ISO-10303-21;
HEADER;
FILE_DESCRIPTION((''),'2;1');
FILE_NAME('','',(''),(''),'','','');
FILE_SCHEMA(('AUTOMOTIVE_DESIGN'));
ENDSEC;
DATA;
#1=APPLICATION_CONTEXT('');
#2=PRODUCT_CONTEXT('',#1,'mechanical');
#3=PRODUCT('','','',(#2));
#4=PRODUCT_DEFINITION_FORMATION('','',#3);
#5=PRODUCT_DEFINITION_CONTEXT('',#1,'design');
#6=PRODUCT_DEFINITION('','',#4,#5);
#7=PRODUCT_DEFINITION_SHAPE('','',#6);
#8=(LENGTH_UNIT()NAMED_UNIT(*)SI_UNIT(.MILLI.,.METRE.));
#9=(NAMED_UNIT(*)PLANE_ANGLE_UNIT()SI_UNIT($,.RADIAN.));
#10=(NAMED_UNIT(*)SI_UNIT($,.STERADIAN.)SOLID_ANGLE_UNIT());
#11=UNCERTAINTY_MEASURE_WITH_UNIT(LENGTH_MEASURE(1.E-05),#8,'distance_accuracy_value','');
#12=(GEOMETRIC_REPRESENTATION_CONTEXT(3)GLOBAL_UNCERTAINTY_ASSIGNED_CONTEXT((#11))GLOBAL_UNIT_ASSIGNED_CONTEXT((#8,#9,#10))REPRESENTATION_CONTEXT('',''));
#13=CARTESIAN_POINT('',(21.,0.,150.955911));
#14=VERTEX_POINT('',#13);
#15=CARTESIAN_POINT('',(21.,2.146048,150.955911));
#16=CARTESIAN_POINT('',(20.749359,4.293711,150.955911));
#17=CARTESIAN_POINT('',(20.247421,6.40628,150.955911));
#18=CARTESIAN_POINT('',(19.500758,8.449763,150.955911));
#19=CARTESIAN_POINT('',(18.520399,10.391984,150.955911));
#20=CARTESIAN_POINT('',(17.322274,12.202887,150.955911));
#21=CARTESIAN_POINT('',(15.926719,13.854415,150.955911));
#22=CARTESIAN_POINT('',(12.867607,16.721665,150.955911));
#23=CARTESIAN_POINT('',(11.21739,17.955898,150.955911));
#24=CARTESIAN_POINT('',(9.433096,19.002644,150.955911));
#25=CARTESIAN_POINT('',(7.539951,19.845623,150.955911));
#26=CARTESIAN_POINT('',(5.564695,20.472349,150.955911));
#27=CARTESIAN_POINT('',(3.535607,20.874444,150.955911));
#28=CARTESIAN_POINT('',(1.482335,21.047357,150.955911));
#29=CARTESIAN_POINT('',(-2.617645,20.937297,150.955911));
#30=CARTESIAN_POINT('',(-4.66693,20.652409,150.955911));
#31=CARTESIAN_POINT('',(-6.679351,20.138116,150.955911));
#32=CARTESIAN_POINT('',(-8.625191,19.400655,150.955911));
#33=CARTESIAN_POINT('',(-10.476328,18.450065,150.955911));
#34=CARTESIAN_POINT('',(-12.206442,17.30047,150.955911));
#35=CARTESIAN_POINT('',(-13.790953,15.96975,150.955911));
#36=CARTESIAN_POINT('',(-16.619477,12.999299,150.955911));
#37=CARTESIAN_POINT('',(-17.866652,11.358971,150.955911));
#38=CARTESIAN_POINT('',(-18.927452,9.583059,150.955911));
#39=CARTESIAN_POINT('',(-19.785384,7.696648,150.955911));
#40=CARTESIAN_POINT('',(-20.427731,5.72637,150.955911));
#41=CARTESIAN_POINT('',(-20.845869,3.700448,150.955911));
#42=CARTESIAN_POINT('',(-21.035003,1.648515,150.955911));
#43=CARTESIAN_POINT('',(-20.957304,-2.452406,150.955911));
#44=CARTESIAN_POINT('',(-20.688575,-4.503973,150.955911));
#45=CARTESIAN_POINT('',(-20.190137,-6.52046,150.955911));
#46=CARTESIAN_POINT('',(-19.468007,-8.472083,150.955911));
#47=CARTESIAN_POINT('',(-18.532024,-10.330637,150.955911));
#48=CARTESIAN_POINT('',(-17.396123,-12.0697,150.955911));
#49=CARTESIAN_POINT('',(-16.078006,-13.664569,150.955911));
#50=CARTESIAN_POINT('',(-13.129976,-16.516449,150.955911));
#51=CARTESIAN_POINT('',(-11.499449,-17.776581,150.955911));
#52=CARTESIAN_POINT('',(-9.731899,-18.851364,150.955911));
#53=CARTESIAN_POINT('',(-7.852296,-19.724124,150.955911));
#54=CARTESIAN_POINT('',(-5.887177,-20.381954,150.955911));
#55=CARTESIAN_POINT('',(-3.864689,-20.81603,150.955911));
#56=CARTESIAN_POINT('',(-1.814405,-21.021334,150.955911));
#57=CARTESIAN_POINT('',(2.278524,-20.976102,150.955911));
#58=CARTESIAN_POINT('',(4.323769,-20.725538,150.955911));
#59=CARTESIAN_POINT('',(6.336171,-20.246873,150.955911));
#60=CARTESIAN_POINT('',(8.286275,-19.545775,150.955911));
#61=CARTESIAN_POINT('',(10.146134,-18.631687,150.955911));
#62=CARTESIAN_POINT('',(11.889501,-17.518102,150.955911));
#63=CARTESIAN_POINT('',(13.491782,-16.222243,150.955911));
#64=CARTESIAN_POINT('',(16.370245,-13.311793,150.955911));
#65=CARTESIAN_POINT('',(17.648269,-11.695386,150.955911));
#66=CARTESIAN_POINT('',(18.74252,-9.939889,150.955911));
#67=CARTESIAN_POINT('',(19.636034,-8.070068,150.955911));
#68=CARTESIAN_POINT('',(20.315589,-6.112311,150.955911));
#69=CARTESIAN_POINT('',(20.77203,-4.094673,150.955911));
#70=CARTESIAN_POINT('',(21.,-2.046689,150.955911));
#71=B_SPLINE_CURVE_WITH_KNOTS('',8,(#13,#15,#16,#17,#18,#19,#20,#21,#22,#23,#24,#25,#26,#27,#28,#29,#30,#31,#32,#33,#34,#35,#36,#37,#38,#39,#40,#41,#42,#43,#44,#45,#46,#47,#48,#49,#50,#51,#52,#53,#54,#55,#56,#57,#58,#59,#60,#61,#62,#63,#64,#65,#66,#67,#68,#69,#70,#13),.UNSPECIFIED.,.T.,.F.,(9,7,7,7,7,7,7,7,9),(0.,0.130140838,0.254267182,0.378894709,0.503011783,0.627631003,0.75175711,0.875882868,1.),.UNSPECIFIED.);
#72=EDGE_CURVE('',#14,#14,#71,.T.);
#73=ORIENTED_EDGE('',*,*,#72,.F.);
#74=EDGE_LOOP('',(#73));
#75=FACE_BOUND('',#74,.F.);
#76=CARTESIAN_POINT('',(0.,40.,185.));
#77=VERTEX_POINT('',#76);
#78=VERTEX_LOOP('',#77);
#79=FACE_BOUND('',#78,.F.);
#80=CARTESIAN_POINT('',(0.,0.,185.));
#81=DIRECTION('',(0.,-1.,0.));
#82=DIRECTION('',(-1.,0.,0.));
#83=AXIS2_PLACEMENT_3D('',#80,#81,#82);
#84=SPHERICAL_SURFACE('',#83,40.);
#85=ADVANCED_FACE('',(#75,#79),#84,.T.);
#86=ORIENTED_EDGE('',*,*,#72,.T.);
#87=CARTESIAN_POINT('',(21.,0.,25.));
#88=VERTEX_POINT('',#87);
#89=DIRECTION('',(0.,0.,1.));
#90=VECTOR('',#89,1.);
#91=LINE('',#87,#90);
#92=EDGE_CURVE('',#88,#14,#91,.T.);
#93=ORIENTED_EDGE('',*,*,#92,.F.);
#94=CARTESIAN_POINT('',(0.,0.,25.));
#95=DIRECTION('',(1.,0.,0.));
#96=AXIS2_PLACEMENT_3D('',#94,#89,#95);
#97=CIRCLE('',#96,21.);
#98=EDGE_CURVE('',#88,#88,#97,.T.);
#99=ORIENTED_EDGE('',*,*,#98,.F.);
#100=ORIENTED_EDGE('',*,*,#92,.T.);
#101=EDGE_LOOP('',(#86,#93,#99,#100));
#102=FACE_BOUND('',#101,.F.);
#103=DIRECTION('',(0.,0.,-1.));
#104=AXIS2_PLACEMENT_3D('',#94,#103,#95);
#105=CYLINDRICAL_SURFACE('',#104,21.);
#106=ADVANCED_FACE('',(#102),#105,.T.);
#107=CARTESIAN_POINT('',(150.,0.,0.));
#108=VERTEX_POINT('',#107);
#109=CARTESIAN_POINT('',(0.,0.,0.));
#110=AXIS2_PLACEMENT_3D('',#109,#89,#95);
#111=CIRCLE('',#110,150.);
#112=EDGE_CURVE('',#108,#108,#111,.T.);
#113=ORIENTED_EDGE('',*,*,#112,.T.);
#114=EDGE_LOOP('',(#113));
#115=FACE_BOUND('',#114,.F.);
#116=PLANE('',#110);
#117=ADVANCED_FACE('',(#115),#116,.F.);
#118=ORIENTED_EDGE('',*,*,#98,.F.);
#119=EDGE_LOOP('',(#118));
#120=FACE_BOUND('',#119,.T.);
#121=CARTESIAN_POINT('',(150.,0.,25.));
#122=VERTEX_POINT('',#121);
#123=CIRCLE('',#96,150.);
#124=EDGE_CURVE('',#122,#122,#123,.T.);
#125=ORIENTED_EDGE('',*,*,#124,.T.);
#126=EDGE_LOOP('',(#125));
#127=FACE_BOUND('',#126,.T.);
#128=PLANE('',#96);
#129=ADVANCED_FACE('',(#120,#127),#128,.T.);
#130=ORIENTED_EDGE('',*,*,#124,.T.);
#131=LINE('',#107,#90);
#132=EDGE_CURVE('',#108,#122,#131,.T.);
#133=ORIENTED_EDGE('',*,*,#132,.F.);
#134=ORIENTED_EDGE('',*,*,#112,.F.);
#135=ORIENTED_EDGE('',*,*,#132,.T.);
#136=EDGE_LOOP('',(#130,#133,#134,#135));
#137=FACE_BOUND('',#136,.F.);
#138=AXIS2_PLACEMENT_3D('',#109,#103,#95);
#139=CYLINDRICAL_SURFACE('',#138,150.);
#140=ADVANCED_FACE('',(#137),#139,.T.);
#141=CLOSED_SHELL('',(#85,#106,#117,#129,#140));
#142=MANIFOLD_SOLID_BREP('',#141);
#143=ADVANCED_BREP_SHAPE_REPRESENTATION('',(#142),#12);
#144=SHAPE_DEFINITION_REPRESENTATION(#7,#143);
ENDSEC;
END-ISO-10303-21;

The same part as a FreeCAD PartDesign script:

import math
import FreeCAD as App
import Part
import Sketcher
Q = App.Units.Quantity

doc = App.newDocument("Part")
body = doc.addObject("PartDesign::Body", "Body")

sketch1 = body.newObject("Sketcher::SketchObject", "Sketch")
sketch1.AttachmentSupport = (doc.getObject("XY_Plane"), [""])
sketch1.MapMode = "FlatFace"
sketch1.addGeometry(Part.Circle(App.Vector(0, 0, 0), App.Vector(0, 0, 1), 150), False)
sketch1.addConstraint(Sketcher.Constraint("Coincident", 0, 3, -1, 1))
sketch1.addConstraint(Sketcher.Constraint("Diameter", 0, Q("300 mm")))
pad1 = body.newObject("PartDesign::Pad", "Pad")
pad1.Profile = sketch1
pad1.Length = 25

sketch2 = body.newObject("Sketcher::SketchObject", "Sketch001")
sketch2.AttachmentSupport = (doc.getObject("XY_Plane"), [""])
sketch2.MapMode = "FlatFace"
sketch2.AttachmentOffset = App.Placement(App.Vector(0, 0, 25), App.Rotation())
sketch2.addGeometry(Part.Circle(App.Vector(0, 0, 0), App.Vector(0, 0, 1), 21), False)
sketch2.addConstraint(Sketcher.Constraint("Coincident", 0, 3, -1, 1))
sketch2.addConstraint(Sketcher.Constraint("Diameter", 0, Q("42 mm")))
pad2 = body.newObject("PartDesign::Pad", "Pad001")
pad2.Profile = sketch2
pad2.Length = 160

sketch3 = body.newObject("Sketcher::SketchObject", "Sketch002")
sketch3.AttachmentSupport = (doc.getObject("XY_Plane"), [""])
sketch3.MapMode = "FlatFace"
sketch3.AttachmentOffset = App.Placement(App.Vector(0, 0, 185), App.Rotation())
sketch3.addGeometry(Part.ArcOfCircle(Part.Circle(App.Vector(0, 0, 0), App.Vector(0, 0, 1), 40), math.radians(90), math.radians(270)), False)
sketch3.addGeometry(Part.LineSegment(App.Vector(0, -40, 0), App.Vector(0, 40, 0)), False)
sketch3.addConstraint(Sketcher.Constraint("Coincident", 0, 1, 1, 2))
sketch3.addConstraint(Sketcher.Constraint("Coincident", 1, 1, 0, 2))
sketch3.addConstraint(Sketcher.Constraint("Vertical", 1))
sketch3.addConstraint(Sketcher.Constraint("Coincident", 0, 3, -1, 1))
sketch3.addConstraint(Sketcher.Constraint("PointOnObject", 0, 1, -2))
sketch3.addConstraint(Sketcher.Constraint("Radius", 0, Q("40 mm")))
revolution = body.newObject("PartDesign::Revolution", "Revolution")
revolution.Profile = sketch3
revolution.ReferenceAxis = (sketch3, ["V_Axis"])
revolution.Angle = 360

doc.recompute()
